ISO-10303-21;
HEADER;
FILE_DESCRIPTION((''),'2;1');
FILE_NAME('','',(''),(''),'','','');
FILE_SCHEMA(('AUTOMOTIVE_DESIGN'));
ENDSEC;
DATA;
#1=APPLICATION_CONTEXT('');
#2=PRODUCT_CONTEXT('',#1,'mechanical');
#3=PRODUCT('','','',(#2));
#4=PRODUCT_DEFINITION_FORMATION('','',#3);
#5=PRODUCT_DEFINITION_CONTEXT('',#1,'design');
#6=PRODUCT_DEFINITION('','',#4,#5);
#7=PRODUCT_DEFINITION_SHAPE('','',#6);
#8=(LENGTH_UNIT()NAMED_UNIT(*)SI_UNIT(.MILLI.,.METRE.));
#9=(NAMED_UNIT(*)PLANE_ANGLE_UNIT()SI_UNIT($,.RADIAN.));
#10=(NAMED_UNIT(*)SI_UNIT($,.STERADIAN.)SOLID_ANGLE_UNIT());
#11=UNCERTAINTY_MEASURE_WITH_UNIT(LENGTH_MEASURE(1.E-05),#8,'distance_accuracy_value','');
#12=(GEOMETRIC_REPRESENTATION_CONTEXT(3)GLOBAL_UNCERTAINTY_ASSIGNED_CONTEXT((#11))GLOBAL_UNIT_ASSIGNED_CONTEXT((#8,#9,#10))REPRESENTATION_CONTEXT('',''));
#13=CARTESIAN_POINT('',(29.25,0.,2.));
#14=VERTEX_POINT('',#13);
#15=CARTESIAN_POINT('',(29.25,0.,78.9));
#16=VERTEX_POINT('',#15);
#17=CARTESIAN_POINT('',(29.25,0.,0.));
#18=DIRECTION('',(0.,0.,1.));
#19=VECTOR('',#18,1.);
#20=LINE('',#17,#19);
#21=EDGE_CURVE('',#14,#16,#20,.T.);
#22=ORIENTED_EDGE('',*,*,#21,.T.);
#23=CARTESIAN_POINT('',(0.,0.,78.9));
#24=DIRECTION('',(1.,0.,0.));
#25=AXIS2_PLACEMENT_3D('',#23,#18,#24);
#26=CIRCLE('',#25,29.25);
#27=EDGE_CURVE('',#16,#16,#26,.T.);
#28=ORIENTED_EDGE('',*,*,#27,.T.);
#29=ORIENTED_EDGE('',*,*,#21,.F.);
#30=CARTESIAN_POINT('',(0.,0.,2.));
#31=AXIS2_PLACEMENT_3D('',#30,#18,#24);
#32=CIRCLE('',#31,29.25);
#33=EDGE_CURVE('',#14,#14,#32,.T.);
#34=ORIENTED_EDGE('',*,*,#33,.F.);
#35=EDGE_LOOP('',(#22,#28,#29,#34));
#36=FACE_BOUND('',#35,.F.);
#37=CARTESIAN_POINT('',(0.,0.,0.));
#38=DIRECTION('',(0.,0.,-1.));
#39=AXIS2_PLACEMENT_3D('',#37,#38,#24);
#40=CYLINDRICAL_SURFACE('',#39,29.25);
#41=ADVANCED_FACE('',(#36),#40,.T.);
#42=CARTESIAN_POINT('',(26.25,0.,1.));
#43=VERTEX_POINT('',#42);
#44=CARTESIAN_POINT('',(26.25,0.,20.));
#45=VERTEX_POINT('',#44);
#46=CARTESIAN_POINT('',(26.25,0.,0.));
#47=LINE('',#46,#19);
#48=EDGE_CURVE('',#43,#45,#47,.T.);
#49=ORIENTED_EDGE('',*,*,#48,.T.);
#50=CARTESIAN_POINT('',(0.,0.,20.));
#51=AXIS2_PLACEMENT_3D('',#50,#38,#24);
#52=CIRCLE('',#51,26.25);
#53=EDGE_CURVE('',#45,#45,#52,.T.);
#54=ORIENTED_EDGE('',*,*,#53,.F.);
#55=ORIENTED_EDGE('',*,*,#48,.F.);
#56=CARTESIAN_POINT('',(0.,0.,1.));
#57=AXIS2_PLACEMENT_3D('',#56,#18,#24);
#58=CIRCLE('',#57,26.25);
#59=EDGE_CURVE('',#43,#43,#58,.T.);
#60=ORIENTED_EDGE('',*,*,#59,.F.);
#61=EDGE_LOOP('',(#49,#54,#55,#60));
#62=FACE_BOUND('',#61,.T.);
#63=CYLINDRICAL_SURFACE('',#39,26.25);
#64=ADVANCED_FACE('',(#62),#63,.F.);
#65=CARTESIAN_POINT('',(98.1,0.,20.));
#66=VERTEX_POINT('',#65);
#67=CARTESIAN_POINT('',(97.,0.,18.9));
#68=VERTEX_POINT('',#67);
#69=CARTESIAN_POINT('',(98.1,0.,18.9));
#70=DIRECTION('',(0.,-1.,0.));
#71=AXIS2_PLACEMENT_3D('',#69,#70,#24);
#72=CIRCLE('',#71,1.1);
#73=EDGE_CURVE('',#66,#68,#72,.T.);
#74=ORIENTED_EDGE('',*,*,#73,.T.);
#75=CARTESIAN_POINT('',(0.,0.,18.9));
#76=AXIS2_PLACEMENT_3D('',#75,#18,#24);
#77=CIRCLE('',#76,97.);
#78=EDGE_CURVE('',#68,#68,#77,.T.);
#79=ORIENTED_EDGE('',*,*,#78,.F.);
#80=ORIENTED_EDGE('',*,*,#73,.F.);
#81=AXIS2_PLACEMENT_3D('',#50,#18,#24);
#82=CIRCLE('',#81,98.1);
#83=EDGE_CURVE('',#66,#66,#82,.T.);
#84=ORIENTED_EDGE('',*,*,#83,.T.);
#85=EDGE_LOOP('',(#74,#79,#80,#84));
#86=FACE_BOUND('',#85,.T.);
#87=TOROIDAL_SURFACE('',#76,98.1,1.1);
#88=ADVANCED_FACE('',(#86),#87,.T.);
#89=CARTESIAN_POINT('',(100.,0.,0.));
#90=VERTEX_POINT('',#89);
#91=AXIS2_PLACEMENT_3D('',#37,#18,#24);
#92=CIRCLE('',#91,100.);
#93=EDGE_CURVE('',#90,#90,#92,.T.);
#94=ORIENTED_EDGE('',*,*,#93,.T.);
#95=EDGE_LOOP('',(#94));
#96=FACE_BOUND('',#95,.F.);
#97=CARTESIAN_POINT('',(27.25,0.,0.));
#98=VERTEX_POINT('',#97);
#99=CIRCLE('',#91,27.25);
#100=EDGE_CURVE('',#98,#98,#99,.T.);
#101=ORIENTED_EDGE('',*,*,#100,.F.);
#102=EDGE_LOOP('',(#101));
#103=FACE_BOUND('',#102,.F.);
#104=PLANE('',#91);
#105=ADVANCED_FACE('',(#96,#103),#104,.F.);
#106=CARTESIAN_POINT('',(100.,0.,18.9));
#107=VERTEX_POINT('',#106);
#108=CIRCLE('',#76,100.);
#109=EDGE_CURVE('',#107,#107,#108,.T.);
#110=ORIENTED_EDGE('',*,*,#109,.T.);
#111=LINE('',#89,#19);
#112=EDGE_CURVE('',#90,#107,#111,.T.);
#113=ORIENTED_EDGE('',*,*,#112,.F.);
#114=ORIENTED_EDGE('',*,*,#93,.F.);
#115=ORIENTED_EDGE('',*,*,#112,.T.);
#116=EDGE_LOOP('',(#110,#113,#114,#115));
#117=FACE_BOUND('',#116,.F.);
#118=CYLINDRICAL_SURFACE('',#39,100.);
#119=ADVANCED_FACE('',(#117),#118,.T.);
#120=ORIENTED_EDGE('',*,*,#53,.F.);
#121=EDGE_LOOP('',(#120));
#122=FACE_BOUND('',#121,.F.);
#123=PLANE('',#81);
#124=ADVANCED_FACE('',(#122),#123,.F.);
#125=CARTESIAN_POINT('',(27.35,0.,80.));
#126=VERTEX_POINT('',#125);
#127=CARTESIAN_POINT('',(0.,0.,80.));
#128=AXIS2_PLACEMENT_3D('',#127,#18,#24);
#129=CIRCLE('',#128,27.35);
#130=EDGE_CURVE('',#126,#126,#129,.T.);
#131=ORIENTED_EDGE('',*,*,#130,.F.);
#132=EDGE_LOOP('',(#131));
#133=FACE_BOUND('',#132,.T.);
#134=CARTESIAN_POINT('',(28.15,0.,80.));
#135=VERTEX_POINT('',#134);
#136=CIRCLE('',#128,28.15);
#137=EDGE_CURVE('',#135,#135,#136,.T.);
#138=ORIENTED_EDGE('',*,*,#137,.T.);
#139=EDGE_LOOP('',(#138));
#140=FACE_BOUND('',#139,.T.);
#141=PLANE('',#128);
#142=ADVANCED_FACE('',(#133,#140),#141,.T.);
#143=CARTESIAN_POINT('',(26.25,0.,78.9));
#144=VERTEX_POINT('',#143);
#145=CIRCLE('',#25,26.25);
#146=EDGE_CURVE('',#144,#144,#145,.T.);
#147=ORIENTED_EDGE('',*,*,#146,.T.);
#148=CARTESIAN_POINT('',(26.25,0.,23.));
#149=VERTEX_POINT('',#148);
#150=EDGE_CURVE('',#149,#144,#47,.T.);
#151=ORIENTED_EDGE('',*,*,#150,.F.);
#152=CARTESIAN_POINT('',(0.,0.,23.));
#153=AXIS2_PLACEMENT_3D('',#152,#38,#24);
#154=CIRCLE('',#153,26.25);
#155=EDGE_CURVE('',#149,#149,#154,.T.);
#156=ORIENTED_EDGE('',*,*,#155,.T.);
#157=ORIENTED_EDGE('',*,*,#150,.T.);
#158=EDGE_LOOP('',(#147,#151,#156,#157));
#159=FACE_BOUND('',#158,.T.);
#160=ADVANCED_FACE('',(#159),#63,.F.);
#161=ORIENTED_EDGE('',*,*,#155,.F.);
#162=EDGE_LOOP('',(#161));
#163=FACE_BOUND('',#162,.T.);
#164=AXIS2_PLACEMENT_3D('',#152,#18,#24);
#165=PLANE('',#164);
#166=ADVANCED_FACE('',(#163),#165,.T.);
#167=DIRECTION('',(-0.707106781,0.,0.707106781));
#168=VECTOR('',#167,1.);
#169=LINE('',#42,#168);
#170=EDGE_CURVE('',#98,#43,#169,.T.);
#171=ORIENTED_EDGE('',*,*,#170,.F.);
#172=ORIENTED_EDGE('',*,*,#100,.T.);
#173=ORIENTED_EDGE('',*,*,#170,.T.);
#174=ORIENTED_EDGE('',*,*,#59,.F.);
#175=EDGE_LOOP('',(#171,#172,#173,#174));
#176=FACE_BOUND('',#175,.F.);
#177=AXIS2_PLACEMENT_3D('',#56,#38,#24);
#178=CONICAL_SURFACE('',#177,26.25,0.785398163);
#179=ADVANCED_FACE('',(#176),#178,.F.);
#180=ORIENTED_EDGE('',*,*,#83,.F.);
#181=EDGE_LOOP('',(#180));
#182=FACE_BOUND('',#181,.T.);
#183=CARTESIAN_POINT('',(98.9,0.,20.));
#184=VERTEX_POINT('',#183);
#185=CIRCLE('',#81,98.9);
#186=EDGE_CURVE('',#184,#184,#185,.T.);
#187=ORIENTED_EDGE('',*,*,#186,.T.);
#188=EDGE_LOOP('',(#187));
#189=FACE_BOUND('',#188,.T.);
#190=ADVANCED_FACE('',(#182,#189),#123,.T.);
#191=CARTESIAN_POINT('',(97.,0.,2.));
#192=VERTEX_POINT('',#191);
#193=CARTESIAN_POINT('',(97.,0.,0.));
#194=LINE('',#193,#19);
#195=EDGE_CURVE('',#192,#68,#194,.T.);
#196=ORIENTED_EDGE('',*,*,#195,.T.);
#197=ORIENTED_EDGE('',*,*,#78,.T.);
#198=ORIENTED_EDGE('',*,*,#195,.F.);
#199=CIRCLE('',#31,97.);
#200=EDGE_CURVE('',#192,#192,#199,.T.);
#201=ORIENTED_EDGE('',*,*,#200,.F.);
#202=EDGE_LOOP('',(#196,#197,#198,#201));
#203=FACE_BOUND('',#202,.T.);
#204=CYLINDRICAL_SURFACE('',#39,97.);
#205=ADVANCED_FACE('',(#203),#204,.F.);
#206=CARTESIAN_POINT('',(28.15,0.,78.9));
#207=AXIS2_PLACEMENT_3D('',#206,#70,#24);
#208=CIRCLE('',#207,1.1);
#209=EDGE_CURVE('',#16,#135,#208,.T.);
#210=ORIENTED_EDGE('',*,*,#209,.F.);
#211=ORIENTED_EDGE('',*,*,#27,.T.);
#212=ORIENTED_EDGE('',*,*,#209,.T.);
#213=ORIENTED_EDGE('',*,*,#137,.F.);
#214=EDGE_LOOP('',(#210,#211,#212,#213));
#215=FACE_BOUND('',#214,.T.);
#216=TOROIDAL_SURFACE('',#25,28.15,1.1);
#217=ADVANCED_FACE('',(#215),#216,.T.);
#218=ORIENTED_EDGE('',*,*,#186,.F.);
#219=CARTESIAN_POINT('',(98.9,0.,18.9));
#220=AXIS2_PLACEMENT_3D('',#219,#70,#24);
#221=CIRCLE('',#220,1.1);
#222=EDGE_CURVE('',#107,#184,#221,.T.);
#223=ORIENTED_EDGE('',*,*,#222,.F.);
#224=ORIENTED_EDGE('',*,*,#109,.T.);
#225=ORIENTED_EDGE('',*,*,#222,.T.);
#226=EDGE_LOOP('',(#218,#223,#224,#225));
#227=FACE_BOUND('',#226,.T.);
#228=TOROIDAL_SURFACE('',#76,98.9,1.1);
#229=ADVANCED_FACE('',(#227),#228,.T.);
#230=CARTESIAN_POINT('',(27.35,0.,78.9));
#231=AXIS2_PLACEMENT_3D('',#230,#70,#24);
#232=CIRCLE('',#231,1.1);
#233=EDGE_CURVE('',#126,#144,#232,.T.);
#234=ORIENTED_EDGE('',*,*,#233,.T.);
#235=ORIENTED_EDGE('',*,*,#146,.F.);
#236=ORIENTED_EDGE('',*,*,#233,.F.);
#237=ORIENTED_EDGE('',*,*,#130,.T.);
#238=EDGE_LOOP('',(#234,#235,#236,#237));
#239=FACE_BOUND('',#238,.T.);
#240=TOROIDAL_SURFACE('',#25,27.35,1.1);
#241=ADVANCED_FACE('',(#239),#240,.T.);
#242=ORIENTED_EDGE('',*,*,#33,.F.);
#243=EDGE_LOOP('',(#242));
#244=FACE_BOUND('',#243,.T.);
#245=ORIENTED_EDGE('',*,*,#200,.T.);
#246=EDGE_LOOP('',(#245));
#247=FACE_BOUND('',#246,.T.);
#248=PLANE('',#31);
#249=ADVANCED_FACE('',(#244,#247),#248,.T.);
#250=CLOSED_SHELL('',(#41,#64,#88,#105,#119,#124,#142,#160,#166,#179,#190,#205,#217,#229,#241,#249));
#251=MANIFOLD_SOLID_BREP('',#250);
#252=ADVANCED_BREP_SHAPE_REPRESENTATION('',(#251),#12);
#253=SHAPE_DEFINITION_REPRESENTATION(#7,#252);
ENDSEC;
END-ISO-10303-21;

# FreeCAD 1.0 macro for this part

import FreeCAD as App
import Part
import Sketcher
from FreeCAD import Vector


def edges_at(feature, points):
    """Names of the edges that pass closest to the given points."""
    edges = feature.Shape.Edges
    near = lambda p: min(range(len(edges)), key=lambda i: edges[i].distToShape(Part.Vertex(*p))[0])
    return sorted({f"Edge{near(p) + 1}" for p in points})

doc = App.newDocument("Part")
body = doc.addObject("PartDesign::Body", "Body")

sketch1 = body.newObject("Sketcher::SketchObject", "Sketch")
sketch1.AttachmentSupport = (doc.getObject("XY_Plane"), [""])
sketch1.MapMode = "FlatFace"
sketch1.addGeometry([
    Part.Circle(Vector(0, 0, 0), Vector(0, 0, 1), 97),
    Part.Circle(Vector(0, 0, 0), Vector(0, 0, 1), 29),
], False)
sketch1.addConstraint([
    Sketcher.Constraint("Coincident", 0, 3, -1, 1),
    Sketcher.Constraint("Coincident", 1, 3, -1, 1),
    Sketcher.Constraint("Diameter", 0, 194.0),
    Sketcher.Constraint("Diameter", 1, 58.5),
])
pad1 = body.newObject("PartDesign::Pad", "Pad")
pad1.Profile = sketch1
pad1.Length = 2

sketch2 = body.newObject("Sketcher::SketchObject", "Sketch001")
sketch2.AttachmentSupport = (doc.getObject("XY_Plane"), [""])
sketch2.MapMode = "FlatFace"
sketch2.addGeometry([
    Part.Circle(Vector(0, 0, 0), Vector(0, 0, 1), 100),
    Part.Circle(Vector(0, 0, 0), Vector(0, 0, 1), 97),
], False)
sketch2.addConstraint([
    Sketcher.Constraint("Coincident", 0, 3, -1, 1),
    Sketcher.Constraint("Coincident", 1, 3, -1, 1),
    Sketcher.Constraint("Diameter", 0, 200.0),
    Sketcher.Constraint("Diameter", 1, 194.0),
])
pad2 = body.newObject("PartDesign::Pad", "Pad001")
pad2.Profile = sketch2
pad2.Length = 20

sketch3 = body.newObject("Sketcher::SketchObject", "Sketch002")
sketch3.AttachmentSupport = (doc.getObject("XY_Plane"), [""])
sketch3.MapMode = "FlatFace"
sketch3.addGeometry([
    Part.Circle(Vector(0, 0, 0), Vector(0, 0, 1), 29),
    Part.Circle(Vector(0, 0, 0), Vector(0, 0, 1), 26),
], False)
sketch3.addConstraint([
    Sketcher.Constraint("Coincident", 0, 3, -1, 1),
    Sketcher.Constraint("Coincident", 1, 3, -1, 1),
    Sketcher.Constraint("Diameter", 0, 58.5),
    Sketcher.Constraint("Diameter", 1, 52.5),
])
pad3 = body.newObject("PartDesign::Pad", "Pad002")
pad3.Profile = sketch3
pad3.Length = 80

sketch4 = body.newObject("Sketcher::SketchObject", "Sketch003")
sketch4.AttachmentSupport = (doc.getObject("XY_Plane"), [""])
sketch4.MapMode = "FlatFace"
sketch4.AttachmentOffset = App.Placement(Vector(0, 0, 20), App.Rotation())
sketch4.addGeometry(Part.Circle(Vector(0, 0, 0), Vector(0, 0, 1), 27), False)
sketch4.addConstraint([
    Sketcher.Constraint("Coincident", 0, 3, -1, 1),
    Sketcher.Constraint("Diameter", 0, 54.5),
])
pad4 = body.newObject("PartDesign::Pad", "Pad003")
pad4.Profile = sketch4
pad4.Length = 3
doc.recompute()

fillet = body.newObject("PartDesign::Fillet", "Fillet")
fillet.Base = (pad4, edges_at(pad4, [
    (-100, 0, 20),
    (-97, 0, 20),
    (-29.25, 0, 80),
    (-26.25, 0, 80),
]))
fillet.Radius = 1.1
doc.recompute()

chamfer = body.newObject("PartDesign::Chamfer", "Chamfer")
chamfer.Base = (fillet, edges_at(fillet, [(-26.25, 0, 0)]))
chamfer.Size = 1

doc.recompute()
